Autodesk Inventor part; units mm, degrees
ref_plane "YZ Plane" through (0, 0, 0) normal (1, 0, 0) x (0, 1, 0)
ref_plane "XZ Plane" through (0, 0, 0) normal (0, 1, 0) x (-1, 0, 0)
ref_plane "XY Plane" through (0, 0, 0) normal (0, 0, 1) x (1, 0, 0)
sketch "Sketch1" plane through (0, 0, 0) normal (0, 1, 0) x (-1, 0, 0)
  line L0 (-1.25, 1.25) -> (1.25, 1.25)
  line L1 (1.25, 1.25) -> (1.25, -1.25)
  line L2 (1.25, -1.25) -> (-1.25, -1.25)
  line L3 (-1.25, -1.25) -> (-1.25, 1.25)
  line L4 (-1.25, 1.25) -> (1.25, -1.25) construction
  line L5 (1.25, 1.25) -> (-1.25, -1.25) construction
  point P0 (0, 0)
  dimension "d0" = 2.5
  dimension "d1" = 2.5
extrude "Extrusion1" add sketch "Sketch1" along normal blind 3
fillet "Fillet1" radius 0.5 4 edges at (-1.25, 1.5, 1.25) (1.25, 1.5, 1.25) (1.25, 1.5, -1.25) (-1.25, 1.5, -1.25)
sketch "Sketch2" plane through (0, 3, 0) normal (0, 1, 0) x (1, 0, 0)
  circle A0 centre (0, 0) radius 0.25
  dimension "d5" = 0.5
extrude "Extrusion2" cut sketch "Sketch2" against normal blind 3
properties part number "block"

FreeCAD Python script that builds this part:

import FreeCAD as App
import Part
import Sketcher

V = App.Vector


def edges_at(feature, points):
    """Names of the edges that pass closest to the given points."""
    edges = feature.Shape.Edges
    near = lambda p: min(range(len(edges)), key=lambda i: edges[i].distToShape(Part.Vertex(*p))[0])
    return sorted({f"Edge{near(p) + 1}" for p in points})


def add_polygon(sketch, points):
    """Adds a closed chain of lines whose ends are joined by coincident constraints."""
    first, n = sketch.GeometryCount, len(points)
    for a, b in zip(points, points[1:] + points[:1]):
        sketch.addGeometry(Part.LineSegment(App.Vector(*a, 0), App.Vector(*b, 0)), False)
    for i in range(n):
        sketch.addConstraint(Sketcher.Constraint("Coincident", first + i, 2, first + (i + 1) % n, 1))

doc = App.newDocument("Part")
body = doc.addObject("PartDesign::Body", "Body")

sketch1 = body.newObject("Sketcher::SketchObject", "Sketch")
sketch1.AttachmentSupport = (doc.getObject("XZ_Plane"), [""])
sketch1.MapMode = "FlatFace"
add_polygon(sketch1, [(-1.2, 1.2), (1.2, 1.2), (1.2, -1.2), (-1.2, -1.2)])
sketch1.addConstraint(Sketcher.Constraint("Horizontal", 0))
sketch1.addConstraint(Sketcher.Constraint("Vertical", 1))
sketch1.addConstraint(Sketcher.Constraint("Horizontal", 2))
sketch1.addConstraint(Sketcher.Constraint("Vertical", 3))
sketch1.addConstraint(Sketcher.Constraint("Symmetric", 0, 2, 2, 2, -1, 1))
sketch1.addConstraint(Sketcher.Constraint("Equal", 2, 1))
sketch1.addConstraint(Sketcher.Constraint("DistanceX", 0, 1, 0, 2, 2.5))
pad1 = body.newObject("PartDesign::Pad", "Pad")
pad1.Profile = sketch1
pad1.Length = 3
pad1.Reversed = True
doc.recompute()

fillet = body.newObject("PartDesign::Fillet", "Fillet")
fillet.Base = (pad1, edges_at(pad1, [
    (-1.25, 1.5, 1.25),
    (1.25, 1.5, 1.25),
    (1.25, 1.5, -1.25),
    (-1.25, 1.5, -1.25),
]))
fillet.Radius = 0.5

sketch2 = body.newObject("Sketcher::SketchObject", "Sketch001")
sketch2.AttachmentSupport = (doc.getObject("XZ_Plane"), [""])
sketch2.MapMode = "FlatFace"
sketch2.AttachmentOffset = App.Placement(V(0, 0, -3), App.Rotation())
sketch2.addGeometry(Part.Circle(V(0, 0, 0), V(0, 0, 1), 0.25), False)
sketch2.addConstraint(Sketcher.Constraint("Coincident", 0, 3, -1, 1))
sketch2.addConstraint(Sketcher.Constraint("Diameter", 0, 0.5))
pocket1 = body.newObject("PartDesign::Pocket", "Pocket")
pocket1.Profile = sketch2
pocket1.Length = 3
pocket1.Reversed = True

doc.recompute()
